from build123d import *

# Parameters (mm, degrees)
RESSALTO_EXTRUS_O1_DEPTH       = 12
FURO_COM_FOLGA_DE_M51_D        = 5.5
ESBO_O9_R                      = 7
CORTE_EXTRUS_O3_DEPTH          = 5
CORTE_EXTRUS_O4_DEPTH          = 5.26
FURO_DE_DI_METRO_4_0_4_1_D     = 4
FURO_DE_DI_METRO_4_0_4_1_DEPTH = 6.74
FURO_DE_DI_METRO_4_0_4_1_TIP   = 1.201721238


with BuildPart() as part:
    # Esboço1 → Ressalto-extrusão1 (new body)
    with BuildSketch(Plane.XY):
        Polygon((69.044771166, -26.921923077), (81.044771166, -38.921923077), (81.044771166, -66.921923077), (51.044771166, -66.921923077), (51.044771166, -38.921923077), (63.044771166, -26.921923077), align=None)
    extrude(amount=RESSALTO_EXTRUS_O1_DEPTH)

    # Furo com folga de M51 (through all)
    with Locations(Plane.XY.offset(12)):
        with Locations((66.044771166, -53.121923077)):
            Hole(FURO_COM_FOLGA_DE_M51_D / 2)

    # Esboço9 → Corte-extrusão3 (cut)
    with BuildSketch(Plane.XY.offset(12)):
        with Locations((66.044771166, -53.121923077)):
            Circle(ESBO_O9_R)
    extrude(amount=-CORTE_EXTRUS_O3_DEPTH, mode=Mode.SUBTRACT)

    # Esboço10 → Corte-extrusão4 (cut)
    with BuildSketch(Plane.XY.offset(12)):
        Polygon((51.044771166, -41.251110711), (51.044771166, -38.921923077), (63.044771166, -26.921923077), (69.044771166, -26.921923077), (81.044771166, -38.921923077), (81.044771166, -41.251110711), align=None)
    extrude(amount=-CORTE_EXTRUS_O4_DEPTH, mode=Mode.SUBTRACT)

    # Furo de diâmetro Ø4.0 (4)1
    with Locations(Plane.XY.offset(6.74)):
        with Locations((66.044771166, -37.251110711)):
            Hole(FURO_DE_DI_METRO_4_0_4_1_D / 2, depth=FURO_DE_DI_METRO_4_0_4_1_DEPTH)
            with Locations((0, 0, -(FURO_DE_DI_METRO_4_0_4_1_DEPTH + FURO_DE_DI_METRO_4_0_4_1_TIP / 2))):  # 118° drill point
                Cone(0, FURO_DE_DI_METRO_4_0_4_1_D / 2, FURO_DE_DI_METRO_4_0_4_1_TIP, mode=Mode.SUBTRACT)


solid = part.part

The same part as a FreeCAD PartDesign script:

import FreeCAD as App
import Part
import Sketcher
from FreeCAD import Vector

doc = App.newDocument("Part")
params = doc.addObject("Spreadsheet::Sheet", "Params")
for row, (alias, value) in enumerate([
    ("sketch1_width", "6 mm"),
    ("sketch1_width2", "30 mm"),
    ("sketch1_height", "28 mm"),
    ("pad1_length", "12 mm"),
    ("sketch2_diameter", "5.5 mm"),
    ("hole_diameter", "5.5 mm"),
    ("sketch3_diameter", "14 mm"),
    ("pocket1_length", "5 mm"),
    ("sketch4_width", "30 mm"),
    ("sketch4_width2", "6 mm"),
    ("pocket2_length", "5.26 mm"),
    ("sketch5_diameter", "4 mm"),
    ("hole2_diameter", "4 mm"),
    ("hole2_depth", "6.74 mm"),
], start=1):
    params.set(f"A{row}", alias)
    params.set(f"B{row}", "=" + value)
    params.setAlias(f"B{row}", alias)

body = doc.addObject("PartDesign::Body", "Body")

# Sketch on XY plane
sketch1 = body.newObject("Sketcher::SketchObject", "Sketch")
sketch1.AttachmentSupport = (doc.getObject("XY_Plane"), [""])
sketch1.MapMode = "FlatFace"
sketch1.addGeometry(Part.LineSegment(Vector(81, -39, 0), Vector(69, -27, 0)), False)
sketch1.addGeometry(Part.LineSegment(Vector(69, -27, 0), Vector(63, -27, 0)), False)
sketch1.addGeometry(Part.LineSegment(Vector(63, -27, 0), Vector(51, -39, 0)), False)
sketch1.addGeometry(Part.LineSegment(Vector(51, -39, 0), Vector(51, -67, 0)), False)
sketch1.addGeometry(Part.LineSegment(Vector(51, -67, 0), Vector(81, -67, 0)), False)
sketch1.addGeometry(Part.LineSegment(Vector(81, -67, 0), Vector(81, -39, 0)), False)
sketch1.addConstraint(Sketcher.Constraint("Coincident", 0, 2, 1, 1))
sketch1.addConstraint(Sketcher.Constraint("Coincident", 1, 2, 2, 1))
sketch1.addConstraint(Sketcher.Constraint("Coincident", 2, 2, 3, 1))
sketch1.addConstraint(Sketcher.Constraint("Coincident", 3, 2, 4, 1))
sketch1.addConstraint(Sketcher.Constraint("Coincident", 4, 2, 5, 1))
sketch1.addConstraint(Sketcher.Constraint("Coincident", 5, 2, 0, 1))
sketch1.addConstraint(Sketcher.Constraint("Horizontal", 1))
sketch1.addConstraint(Sketcher.Constraint("Vertical", 3))
sketch1.addConstraint(Sketcher.Constraint("Horizontal", 4))
sketch1.addConstraint(Sketcher.Constraint("Vertical", 5))
sketch1.addConstraint(Sketcher.Constraint("Perpendicular", 0, 2))
sketch1.addConstraint(Sketcher.Constraint("Horizontal", 2, 2, 5, 2))
sketch1.addConstraint(Sketcher.Constraint("Equal", 0, 2))
sketch1.addConstraint(Sketcher.Constraint("DistanceX", 1, 2, 1, 1, 6.0))
sketch1.addConstraint(Sketcher.Constraint("DistanceX", 4, 1, 4, 2, 30.0))
sketch1.addConstraint(Sketcher.Constraint("DistanceY", 3, 2, 3, 1, 28.0))
sketch1.addConstraint(Sketcher.Constraint("DistanceX", -1, 1, 0, 2, 69.044771))
sketch1.addConstraint(Sketcher.Constraint("DistanceY", 0, 2, -1, 1, 26.921923))
sketch1.setExpression("Constraints[13]", "Params.sketch1_width")
sketch1.setExpression("Constraints[14]", "Params.sketch1_width2")
sketch1.setExpression("Constraints[15]", "Params.sketch1_height")
pad1 = body.newObject("PartDesign::Pad", "Pad")
pad1.Profile = sketch1
pad1.setExpression("Length", "Params.pad1_length")

# Sketch on XY plane
sketch2 = body.newObject("Sketcher::SketchObject", "Sketch001")
sketch2.AttachmentSupport = (doc.getObject("XY_Plane"), [""])
sketch2.MapMode = "FlatFace"
sketch2.AttachmentOffset = App.Placement(Vector(0, 0, 12), App.Rotation())
sketch2.addGeometry(Part.Circle(Vector(66, -53.1, 0), Vector(0, 0, 1), 2.8), False)
sketch2.addConstraint(Sketcher.Constraint("Diameter", 0, 5.5))
sketch2.addConstraint(Sketcher.Constraint("DistanceX", -1, 1, 0, 3, 66.044771))
sketch2.addConstraint(Sketcher.Constraint("DistanceY", 0, 3, -1, 1, 53.121923))
sketch2.setExpression("Constraints[0]", "Params.sketch2_diameter")
doc.recompute()
hole = body.newObject("PartDesign::Hole", "Hole")
hole.Profile = sketch2
hole.ThreadType = "None"
hole.setExpression("Diameter", "Params.hole_diameter")
hole.DepthType = "ThroughAll"

# Sketch on XY plane
sketch3 = body.newObject("Sketcher::SketchObject", "Sketch002")
sketch3.AttachmentSupport = (doc.getObject("XY_Plane"), [""])
sketch3.MapMode = "FlatFace"
sketch3.AttachmentOffset = App.Placement(Vector(0, 0, 12), App.Rotation())
sketch3.addGeometry(Part.Circle(Vector(66, -53, 0), Vector(0, 0, 1), 7), False)
sketch3.addConstraint(Sketcher.Constraint("Diameter", 0, 14.0))
sketch3.addConstraint(Sketcher.Constraint("DistanceX", -1, 1, 0, 3, 66.044771))
sketch3.addConstraint(Sketcher.Constraint("DistanceY", 0, 3, -1, 1, 53.121923))
sketch3.setExpression("Constraints[0]", "Params.sketch3_diameter")
pocket1 = body.newObject("PartDesign::Pocket", "Pocket")
pocket1.Profile = sketch3
pocket1.setExpression("Length", "Params.pocket1_length")

# Sketch on XY plane
sketch4 = body.newObject("Sketcher::SketchObject", "Sketch003")
sketch4.AttachmentSupport = (doc.getObject("XY_Plane"), [""])
sketch4.MapMode = "FlatFace"
sketch4.AttachmentOffset = App.Placement(Vector(0, 0, 12), App.Rotation())
sketch4.addGeometry(Part.LineSegment(Vector(51, -38.9, 0), Vector(51, -41.3, 0)), False)
sketch4.addGeometry(Part.LineSegment(Vector(51, -41.3, 0), Vector(81, -41.3, 0)), False)
sketch4.addGeometry(Part.LineSegment(Vector(81, -41.3, 0), Vector(81, -38.9, 0)), False)
sketch4.addGeometry(Part.LineSegment(Vector(81, -38.9, 0), Vector(69, -26.9, 0)), False)
sketch4.addGeometry(Part.LineSegment(Vector(69, -26.9, 0), Vector(63, -26.9, 0)), False)
sketch4.addGeometry(Part.LineSegment(Vector(63, -26.9, 0), Vector(51, -38.9, 0)), False)
sketch4.addConstraint(Sketcher.Constraint("Coincident", 0, 2, 1, 1))
sketch4.addConstraint(Sketcher.Constraint("Coincident", 1, 2, 2, 1))
sketch4.addConstraint(Sketcher.Constraint("Coincident", 2, 2, 3, 1))
sketch4.addConstraint(Sketcher.Constraint("Coincident", 3, 2, 4, 1))
sketch4.addConstraint(Sketcher.Constraint("Coincident", 4, 2, 5, 1))
sketch4.addConstraint(Sketcher.Constraint("Coincident", 5, 2, 0, 1))
sketch4.addConstraint(Sketcher.Constraint("Vertical", 0))
sketch4.addConstraint(Sketcher.Constraint("Horizontal", 1))
sketch4.addConstraint(Sketcher.Constraint("Vertical", 2))
sketch4.addConstraint(Sketcher.Constraint("Horizontal", 4))
sketch4.addConstraint(Sketcher.Constraint("Perpendicular", 3, 5))
sketch4.addConstraint(Sketcher.Constraint("Horizontal", 2, 2, 5, 2))
sketch4.addConstraint(Sketcher.Constraint("Equal", 3, 5))
sketch4.addConstraint(Sketcher.Constraint("DistanceX", 1, 1, 1, 2, 30.0))
sketch4.addConstraint(Sketcher.Constraint("DistanceX", 4, 2, 4, 1, 6.0))
sketch4.addConstraint(Sketcher.Constraint("DistanceY", 0, 2, 0, 1, 2.329188))
sketch4.addConstraint(Sketcher.Constraint("DistanceX", -1, 1, 0, 2, 51.044771))
sketch4.addConstraint(Sketcher.Constraint("DistanceY", 0, 2, -1, 1, 41.251111))
sketch4.setExpression("Constraints[13]", "Params.sketch4_width")
sketch4.setExpression("Constraints[14]", "Params.sketch4_width2")
pocket2 = body.newObject("PartDesign::Pocket", "Pocket001")
pocket2.Profile = sketch4
pocket2.setExpression("Length", "Params.pocket2_length")

# Sketch on XY plane
sketch5 = body.newObject("Sketcher::SketchObject", "Sketch004")
sketch5.AttachmentSupport = (doc.getObject("XY_Plane"), [""])
sketch5.MapMode = "FlatFace"
sketch5.AttachmentOffset = App.Placement(Vector(0, 0, 6.74), App.Rotation())
sketch5.addGeometry(Part.Circle(Vector(66, -37.3, 0), Vector(0, 0, 1), 2), False)
sketch5.addConstraint(Sketcher.Constraint("Diameter", 0, 4.0))
sketch5.addConstraint(Sketcher.Constraint("DistanceX", -1, 1, 0, 3, 66.044771))
sketch5.addConstraint(Sketcher.Constraint("DistanceY", 0, 3, -1, 1, 37.251111))
sketch5.setExpression("Constraints[0]", "Params.sketch5_diameter")
doc.recompute()
hole2 = body.newObject("PartDesign::Hole", "Hole001")
hole2.Profile = sketch5
hole2.ThreadType = "None"
hole2.setExpression("Diameter", "Params.hole2_diameter")
hole2.DepthType = "Dimension"
hole2.setExpression("Depth", "Params.hole2_depth")
hole2.DrillPoint = "Angled"
hole2.DrillPointAngle = 118

doc.recompute()
